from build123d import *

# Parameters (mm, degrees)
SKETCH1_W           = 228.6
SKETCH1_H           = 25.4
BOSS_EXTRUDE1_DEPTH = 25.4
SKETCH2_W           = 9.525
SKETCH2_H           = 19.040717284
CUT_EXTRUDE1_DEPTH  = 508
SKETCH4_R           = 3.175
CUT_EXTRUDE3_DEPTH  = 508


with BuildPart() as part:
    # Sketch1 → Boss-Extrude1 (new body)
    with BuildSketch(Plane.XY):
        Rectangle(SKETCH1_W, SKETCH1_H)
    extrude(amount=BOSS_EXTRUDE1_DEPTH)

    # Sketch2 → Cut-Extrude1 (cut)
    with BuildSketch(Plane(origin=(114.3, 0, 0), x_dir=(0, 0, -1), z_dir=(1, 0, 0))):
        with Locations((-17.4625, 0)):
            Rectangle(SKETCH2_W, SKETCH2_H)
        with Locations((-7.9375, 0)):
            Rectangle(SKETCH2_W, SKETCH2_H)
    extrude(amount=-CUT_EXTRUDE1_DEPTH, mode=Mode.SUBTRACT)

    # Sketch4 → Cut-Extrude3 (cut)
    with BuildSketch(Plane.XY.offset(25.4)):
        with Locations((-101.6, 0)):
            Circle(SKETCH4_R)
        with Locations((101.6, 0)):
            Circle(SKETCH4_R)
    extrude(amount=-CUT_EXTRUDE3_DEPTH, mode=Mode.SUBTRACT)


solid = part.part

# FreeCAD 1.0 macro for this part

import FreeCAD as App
import Part
import Sketcher
from FreeCAD import Vector
Q = App.Units.Quantity


def add_polygon(sketch, points):
    """Adds a closed chain of lines whose ends are joined by coincident constraints."""
    first, n = sketch.GeometryCount, len(points)
    for a, b in zip(points, points[1:] + points[:1]):
        sketch.addGeometry(Part.LineSegment(App.Vector(*a, 0), App.Vector(*b, 0)), False)
    for i in range(n):
        sketch.addConstraint(Sketcher.Constraint("Coincident", first + i, 2, first + (i + 1) % n, 1))

doc = App.newDocument("Part")
body = doc.addObject("PartDesign::Body", "Body")

# Sketch on XY plane
sketch1 = body.newObject("Sketcher::SketchObject", "Sketch")
sketch1.AttachmentSupport = (doc.getObject("XY_Plane"), [""])
sketch1.MapMode = "FlatFace"
add_polygon(sketch1, [(-114, 13), (-114, -13), (114, -13), (114, 13)])  # lines 0-3
sketch1.addConstraint([
    Sketcher.Constraint("Vertical", 0),
    Sketcher.Constraint("Horizontal", 1),
    Sketcher.Constraint("Vertical", 2),
    Sketcher.Constraint("Horizontal", 3),
    Sketcher.Constraint("Symmetric", 0, 2, 2, 2, -1, 1),
    Sketcher.Constraint("DistanceX", 1, 1, 1, 2, Q("9 in")),
    Sketcher.Constraint("DistanceY", 0, 2, 0, 1, Q("1 in")),
])
pad1 = body.newObject("PartDesign::Pad", "Pad")
pad1.Profile = sketch1
pad1.Length = Q("1 in")

# Sketch on YZ plane
sketch2 = body.newObject("Sketcher::SketchObject", "Sketch001")
sketch2.AttachmentSupport = (doc.getObject("YZ_Plane"), [""])
sketch2.MapMode = "FlatFace"
sketch2.AttachmentOffset = App.Placement(Vector(0, 0, 4.5 * 25.4), App.Rotation())
add_polygon(sketch2, [(10, 22), (-10, 22), (-10, 3), (10, 3)])  # lines 0-3
sketch2.addConstraint([
    Sketcher.Constraint("Horizontal", 0),
    Sketcher.Constraint("Vertical", 1),
    Sketcher.Constraint("Horizontal", 2),
    Sketcher.Constraint("Vertical", 3),
    Sketcher.Constraint("DistanceY", 1, 2, 1, 1, Q("0.75 in")),
    Sketcher.Constraint("DistanceY", -1, 1, 0, 2, Q("0.875 in")),
    Sketcher.Constraint("DistanceX", 0, 2, 0, 1, 19.040717),
    Sketcher.Constraint("DistanceX", 0, 2, -1, 1, 9.520359),
])
pocket1 = body.newObject("PartDesign::Pocket", "Pocket")
pocket1.Profile = sketch2
pocket1.Length = Q("20 in")

# Sketch on XY plane
sketch3 = body.newObject("Sketcher::SketchObject", "Sketch002")
sketch3.AttachmentSupport = (doc.getObject("XY_Plane"), [""])
sketch3.MapMode = "FlatFace"
sketch3.AttachmentOffset = App.Placement(Vector(0, 0, 1 * 25.4), App.Rotation())
sketch3.addGeometry([
    Part.Circle(Vector(-101.6, 0, 0), Vector(0, 0, 1), 3.2),
    Part.Circle(Vector(101.6, 0, 0), Vector(0, 0, 1), 3.2),
], False)
sketch3.addConstraint([
    Sketcher.Constraint("Equal", 0, 1),
    Sketcher.Constraint("Symmetric", 0, 3, 1, 3, -1, 1),
    Sketcher.Constraint("PointOnObject", 0, 3, -1),
    Sketcher.Constraint("Diameter", 0, Q("0.25 in")),
    Sketcher.Constraint("DistanceX", 0, 3, -1, 1, Q("4 in")),
])
pocket2 = body.newObject("PartDesign::Pocket", "Pocket001")
pocket2.Profile = sketch3
pocket2.Length = Q("20 in")

doc.recompute()
